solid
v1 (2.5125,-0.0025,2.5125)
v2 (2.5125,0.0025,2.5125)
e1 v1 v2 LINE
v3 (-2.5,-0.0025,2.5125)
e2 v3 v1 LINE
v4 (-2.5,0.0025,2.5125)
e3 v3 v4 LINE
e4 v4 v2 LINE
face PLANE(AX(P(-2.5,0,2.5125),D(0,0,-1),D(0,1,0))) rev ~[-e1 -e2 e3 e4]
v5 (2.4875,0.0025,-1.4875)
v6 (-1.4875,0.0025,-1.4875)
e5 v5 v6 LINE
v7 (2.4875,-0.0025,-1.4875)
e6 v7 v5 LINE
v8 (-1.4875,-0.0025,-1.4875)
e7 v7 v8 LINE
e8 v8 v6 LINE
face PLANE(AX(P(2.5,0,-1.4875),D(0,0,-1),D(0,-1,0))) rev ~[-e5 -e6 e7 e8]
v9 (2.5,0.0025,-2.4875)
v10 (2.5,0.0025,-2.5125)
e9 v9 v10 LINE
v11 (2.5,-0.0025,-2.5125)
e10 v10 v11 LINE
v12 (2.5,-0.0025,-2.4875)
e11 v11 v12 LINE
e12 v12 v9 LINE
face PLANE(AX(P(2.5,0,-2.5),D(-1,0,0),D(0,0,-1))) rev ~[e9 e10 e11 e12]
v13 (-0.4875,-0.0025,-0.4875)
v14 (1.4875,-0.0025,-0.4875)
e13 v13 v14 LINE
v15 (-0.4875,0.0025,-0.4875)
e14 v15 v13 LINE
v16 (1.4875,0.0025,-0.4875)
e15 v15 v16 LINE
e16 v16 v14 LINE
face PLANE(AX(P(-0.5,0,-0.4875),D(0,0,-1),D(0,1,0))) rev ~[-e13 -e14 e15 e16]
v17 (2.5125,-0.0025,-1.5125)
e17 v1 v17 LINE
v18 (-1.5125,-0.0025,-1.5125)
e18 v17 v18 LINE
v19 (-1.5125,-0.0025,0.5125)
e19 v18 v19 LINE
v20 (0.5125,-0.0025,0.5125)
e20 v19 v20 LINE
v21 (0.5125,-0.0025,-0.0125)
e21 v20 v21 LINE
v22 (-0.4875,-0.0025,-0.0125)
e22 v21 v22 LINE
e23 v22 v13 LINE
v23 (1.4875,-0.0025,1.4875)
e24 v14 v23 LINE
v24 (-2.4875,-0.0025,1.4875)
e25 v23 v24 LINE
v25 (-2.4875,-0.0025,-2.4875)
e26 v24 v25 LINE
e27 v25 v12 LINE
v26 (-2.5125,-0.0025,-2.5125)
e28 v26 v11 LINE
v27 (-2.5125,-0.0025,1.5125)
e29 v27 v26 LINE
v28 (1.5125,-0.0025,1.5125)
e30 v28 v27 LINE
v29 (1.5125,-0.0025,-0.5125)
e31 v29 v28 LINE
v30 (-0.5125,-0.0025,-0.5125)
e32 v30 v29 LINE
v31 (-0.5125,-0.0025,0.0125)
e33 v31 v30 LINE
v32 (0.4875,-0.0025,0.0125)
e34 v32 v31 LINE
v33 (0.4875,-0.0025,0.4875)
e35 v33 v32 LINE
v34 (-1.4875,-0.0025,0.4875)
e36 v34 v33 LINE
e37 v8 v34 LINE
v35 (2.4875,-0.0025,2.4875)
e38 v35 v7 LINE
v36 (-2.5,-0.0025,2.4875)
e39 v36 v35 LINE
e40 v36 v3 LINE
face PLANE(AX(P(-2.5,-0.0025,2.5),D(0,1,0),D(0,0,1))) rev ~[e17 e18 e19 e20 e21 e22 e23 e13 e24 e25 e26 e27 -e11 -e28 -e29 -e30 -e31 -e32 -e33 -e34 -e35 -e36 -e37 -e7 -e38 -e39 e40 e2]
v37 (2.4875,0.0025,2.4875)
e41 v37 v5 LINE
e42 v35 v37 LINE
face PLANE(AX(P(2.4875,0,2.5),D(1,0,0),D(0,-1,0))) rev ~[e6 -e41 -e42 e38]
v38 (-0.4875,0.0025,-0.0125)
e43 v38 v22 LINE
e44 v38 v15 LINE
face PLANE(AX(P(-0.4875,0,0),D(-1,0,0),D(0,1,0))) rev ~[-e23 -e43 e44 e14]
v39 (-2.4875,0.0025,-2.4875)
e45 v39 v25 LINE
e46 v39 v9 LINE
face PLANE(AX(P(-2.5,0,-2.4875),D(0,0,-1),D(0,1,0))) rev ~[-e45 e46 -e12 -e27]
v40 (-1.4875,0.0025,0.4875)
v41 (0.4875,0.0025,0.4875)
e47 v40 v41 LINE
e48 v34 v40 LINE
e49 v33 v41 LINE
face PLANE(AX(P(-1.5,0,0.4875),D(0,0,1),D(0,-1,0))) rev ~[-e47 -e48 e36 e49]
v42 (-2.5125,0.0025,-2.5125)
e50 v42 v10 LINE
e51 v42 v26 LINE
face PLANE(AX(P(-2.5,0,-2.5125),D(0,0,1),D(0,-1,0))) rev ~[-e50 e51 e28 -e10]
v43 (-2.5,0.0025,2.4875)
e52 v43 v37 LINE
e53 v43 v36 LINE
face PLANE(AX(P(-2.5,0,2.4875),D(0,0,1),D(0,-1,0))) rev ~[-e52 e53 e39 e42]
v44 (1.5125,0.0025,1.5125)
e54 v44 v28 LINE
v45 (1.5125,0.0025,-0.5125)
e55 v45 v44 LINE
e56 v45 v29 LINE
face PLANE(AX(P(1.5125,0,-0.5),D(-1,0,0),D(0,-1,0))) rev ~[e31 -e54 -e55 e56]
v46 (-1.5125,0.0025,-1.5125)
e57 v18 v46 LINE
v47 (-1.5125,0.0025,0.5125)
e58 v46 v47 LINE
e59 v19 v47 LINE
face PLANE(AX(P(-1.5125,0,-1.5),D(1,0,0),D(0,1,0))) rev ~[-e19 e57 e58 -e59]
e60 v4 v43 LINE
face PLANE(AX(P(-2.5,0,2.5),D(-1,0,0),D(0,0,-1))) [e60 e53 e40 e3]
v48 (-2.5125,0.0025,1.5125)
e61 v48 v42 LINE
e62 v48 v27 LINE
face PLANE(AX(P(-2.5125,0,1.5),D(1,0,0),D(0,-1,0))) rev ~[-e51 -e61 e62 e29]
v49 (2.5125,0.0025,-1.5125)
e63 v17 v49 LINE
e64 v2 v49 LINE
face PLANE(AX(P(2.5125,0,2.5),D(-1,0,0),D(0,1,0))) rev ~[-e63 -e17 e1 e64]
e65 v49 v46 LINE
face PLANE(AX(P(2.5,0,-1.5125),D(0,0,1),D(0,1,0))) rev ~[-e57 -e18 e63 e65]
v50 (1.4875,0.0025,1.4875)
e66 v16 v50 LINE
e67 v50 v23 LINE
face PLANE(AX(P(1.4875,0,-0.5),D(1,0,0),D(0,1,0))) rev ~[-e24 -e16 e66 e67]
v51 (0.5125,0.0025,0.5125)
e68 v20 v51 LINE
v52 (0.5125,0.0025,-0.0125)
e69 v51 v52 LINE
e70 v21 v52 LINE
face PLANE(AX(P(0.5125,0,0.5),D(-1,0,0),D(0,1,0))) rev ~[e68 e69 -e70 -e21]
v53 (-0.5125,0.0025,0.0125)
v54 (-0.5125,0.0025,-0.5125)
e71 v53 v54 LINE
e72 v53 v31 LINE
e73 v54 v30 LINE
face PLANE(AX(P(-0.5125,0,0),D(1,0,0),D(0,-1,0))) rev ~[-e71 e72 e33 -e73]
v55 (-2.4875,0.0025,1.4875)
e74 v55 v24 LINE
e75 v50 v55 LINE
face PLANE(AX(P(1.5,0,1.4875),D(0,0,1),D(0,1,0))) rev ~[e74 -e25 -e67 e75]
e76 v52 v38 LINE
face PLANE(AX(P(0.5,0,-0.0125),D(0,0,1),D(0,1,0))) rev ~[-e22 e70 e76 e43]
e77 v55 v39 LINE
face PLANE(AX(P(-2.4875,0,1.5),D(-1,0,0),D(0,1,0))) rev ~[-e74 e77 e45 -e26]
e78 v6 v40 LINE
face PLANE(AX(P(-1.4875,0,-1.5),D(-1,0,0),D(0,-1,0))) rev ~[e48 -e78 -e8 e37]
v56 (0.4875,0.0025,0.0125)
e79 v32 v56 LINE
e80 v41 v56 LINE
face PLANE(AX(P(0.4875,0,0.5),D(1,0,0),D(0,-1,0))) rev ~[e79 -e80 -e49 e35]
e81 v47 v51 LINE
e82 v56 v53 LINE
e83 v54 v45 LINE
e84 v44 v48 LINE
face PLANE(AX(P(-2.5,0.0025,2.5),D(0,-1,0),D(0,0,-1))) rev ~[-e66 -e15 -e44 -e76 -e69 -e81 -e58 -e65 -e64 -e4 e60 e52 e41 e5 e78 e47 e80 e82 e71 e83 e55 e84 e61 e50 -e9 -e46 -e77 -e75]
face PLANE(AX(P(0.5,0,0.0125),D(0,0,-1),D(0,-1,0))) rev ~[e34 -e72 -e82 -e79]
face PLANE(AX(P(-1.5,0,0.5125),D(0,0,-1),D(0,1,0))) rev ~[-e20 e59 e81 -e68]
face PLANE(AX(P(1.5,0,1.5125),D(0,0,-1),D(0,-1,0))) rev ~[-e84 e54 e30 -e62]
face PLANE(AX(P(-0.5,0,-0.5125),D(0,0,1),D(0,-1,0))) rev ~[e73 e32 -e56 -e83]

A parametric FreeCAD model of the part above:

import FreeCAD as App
import Part
import Sketcher
from FreeCAD import Vector


def add_polygon(sketch, points):
    """Adds a closed chain of lines whose ends are joined by coincident constraints."""
    first, n = sketch.GeometryCount, len(points)
    for a, b in zip(points, points[1:] + points[:1]):
        sketch.addGeometry(Part.LineSegment(App.Vector(*a, 0), App.Vector(*b, 0)), False)
    for i in range(n):
        sketch.addConstraint(Sketcher.Constraint("Coincident", first + i, 2, first + (i + 1) % n, 1))

doc = App.newDocument("Part")
body = doc.addObject("PartDesign::Body", "Body")

# Sketch on YZ plane
sketch1 = body.newObject("Sketcher::SketchObject", "Sketch")
sketch1.AttachmentSupport = (doc.getObject("YZ_Plane"), [""])
sketch1.MapMode = "FlatFace"
add_polygon(sketch1, [(0.0025, 0.0125), (-0.0025, 0.0125), (-0.0025, -0.0125), (0.0025, -0.0125)])  # lines 0-3
sketch1.addConstraint(Sketcher.Constraint("Horizontal", 0))
sketch1.addConstraint(Sketcher.Constraint("Vertical", 1))
sketch1.addConstraint(Sketcher.Constraint("Horizontal", 2))
sketch1.addConstraint(Sketcher.Constraint("Vertical", 3))
sketch1.addConstraint(Sketcher.Constraint("Symmetric", 0, 2, 2, 2, -1, 1))
sketch1.addConstraint(Sketcher.Constraint("DistanceX", 0, 2, 0, 1, 0.005))
sketch1.addConstraint(Sketcher.Constraint("DistanceY", 1, 2, 1, 1, 0.025))

# Sketch on XZ plane
sketch2 = body.newObject("Sketcher::SketchObject", "Sketch001")
sketch2.AttachmentSupport = (doc.getObject("XZ_Plane"), [""])
sketch2.MapMode = "FlatFace"
sketch2.addGeometry(Part.LineSegment(Vector(-2.5, 2.5, 0), Vector(2.5, 2.5, 0)), False)
sketch2.addGeometry(Part.LineSegment(Vector(2.5, 2.5, 0), Vector(2.5, -1.5, 0)), False)
sketch2.addGeometry(Part.LineSegment(Vector(2.5, -1.5, 0), Vector(-1.5, -1.5, 0)), False)
sketch2.addGeometry(Part.LineSegment(Vector(-1.5, -1.5, 0), Vector(-1.5, 0.5, 0)), False)
sketch2.addGeometry(Part.LineSegment(Vector(-1.5, 0.5, 0), Vector(0.5, 0.5, 0)), False)
sketch2.addGeometry(Part.LineSegment(Vector(0.5, 0.5, 0), Vector(0.5, 0, 0)), False)
sketch2.addGeometry(Part.LineSegment(Vector(0.5, 0, 0), Vector(-0.5, 0, 0)), False)
sketch2.addGeometry(Part.LineSegment(Vector(-0.5, 0, 0), Vector(-0.5, -0.5, 0)), False)
sketch2.addGeometry(Part.LineSegment(Vector(-0.5, -0.5, 0), Vector(1.5, -0.5, 0)), False)
sketch2.addGeometry(Part.LineSegment(Vector(1.5, -0.5, 0), Vector(1.5, 1.5, 0)), False)
sketch2.addGeometry(Part.LineSegment(Vector(1.5, 1.5, 0), Vector(-2.5, 1.5, 0)), False)
sketch2.addGeometry(Part.LineSegment(Vector(-2.5, 1.5, 0), Vector(-2.5, -2.5, 0)), False)
sketch2.addGeometry(Part.LineSegment(Vector(-2.5, -2.5, 0), Vector(2.5, -2.5, 0)), False)
sketch2.addConstraint(Sketcher.Constraint("Coincident", 0, 2, 1, 1))
sketch2.addConstraint(Sketcher.Constraint("Coincident", 1, 2, 2, 1))
sketch2.addConstraint(Sketcher.Constraint("Coincident", 2, 2, 3, 1))
sketch2.addConstraint(Sketcher.Constraint("Coincident", 3, 2, 4, 1))
sketch2.addConstraint(Sketcher.Constraint("Coincident", 4, 2, 5, 1))
sketch2.addConstraint(Sketcher.Constraint("Coincident", 5, 2, 6, 1))
sketch2.addConstraint(Sketcher.Constraint("Coincident", 6, 2, 7, 1))
sketch2.addConstraint(Sketcher.Constraint("Coincident", 7, 2, 8, 1))
sketch2.addConstraint(Sketcher.Constraint("Coincident", 8, 2, 9, 1))
sketch2.addConstraint(Sketcher.Constraint("Coincident", 9, 2, 10, 1))
sketch2.addConstraint(Sketcher.Constraint("Coincident", 10, 2, 11, 1))
sketch2.addConstraint(Sketcher.Constraint("Coincident", 11, 2, 12, 1))
sketch2.addConstraint(Sketcher.Constraint("Horizontal", 0))
sketch2.addConstraint(Sketcher.Constraint("Vertical", 1))
sketch2.addConstraint(Sketcher.Constraint("Horizontal", 2))
sketch2.addConstraint(Sketcher.Constraint("Vertical", 3))
sketch2.addConstraint(Sketcher.Constraint("Horizontal", 4))
sketch2.addConstraint(Sketcher.Constraint("Vertical", 5))
sketch2.addConstraint(Sketcher.Constraint("Horizontal", 6))
sketch2.addConstraint(Sketcher.Constraint("Vertical", 7))
sketch2.addConstraint(Sketcher.Constraint("Horizontal", 8))
sketch2.addConstraint(Sketcher.Constraint("Vertical", 9))
sketch2.addConstraint(Sketcher.Constraint("Horizontal", 10))
sketch2.addConstraint(Sketcher.Constraint("Vertical", 11))
sketch2.addConstraint(Sketcher.Constraint("Horizontal", 12))
sketch2.addConstraint(Sketcher.Constraint("Symmetric", 5, 2, 6, 2, -1, 1))
sketch2.addConstraint(Sketcher.Constraint("Symmetric", 3, 2, 8, 2, -1, 1))
sketch2.addConstraint(Sketcher.Constraint("Symmetric", 1, 2, 10, 2, -1, 1))
sketch2.addConstraint(Sketcher.Constraint("Symmetric", 0, 1, 12, 2, -1, 1))
sketch2.addConstraint(Sketcher.Constraint("Vertical", 0, 1, 10, 2))
sketch2.addConstraint(Sketcher.Constraint("Equal", 10, 1))
sketch2.addConstraint(Sketcher.Constraint("Equal", 8, 3))
sketch2.addConstraint(Sketcher.Constraint("DistanceX", 0, 1, 0, 2, 5.0))
sketch2.addConstraint(Sketcher.Constraint("DistanceX", 2, 2, 2, 1, 4.0))
sketch2.addConstraint(Sketcher.Constraint("DistanceX", 4, 1, 4, 2, 2.0))
sketch2.addConstraint(Sketcher.Constraint("DistanceY", 5, 2, 5, 1, 0.5))
doc.recompute()

additivepipe = body.newObject("PartDesign::AdditivePipe", "AdditivePipe")
additivepipe.Profile = sketch1
additivepipe.Spine = (sketch2, ["Edge1", "Edge2", "Edge3", "Edge4", "Edge5", "Edge6", "Edge7", "Edge8", "Edge9", "Edge10", "Edge11", "Edge12", "Edge13"])
additivepipe.Transition = "Right corner"

doc.recompute()
